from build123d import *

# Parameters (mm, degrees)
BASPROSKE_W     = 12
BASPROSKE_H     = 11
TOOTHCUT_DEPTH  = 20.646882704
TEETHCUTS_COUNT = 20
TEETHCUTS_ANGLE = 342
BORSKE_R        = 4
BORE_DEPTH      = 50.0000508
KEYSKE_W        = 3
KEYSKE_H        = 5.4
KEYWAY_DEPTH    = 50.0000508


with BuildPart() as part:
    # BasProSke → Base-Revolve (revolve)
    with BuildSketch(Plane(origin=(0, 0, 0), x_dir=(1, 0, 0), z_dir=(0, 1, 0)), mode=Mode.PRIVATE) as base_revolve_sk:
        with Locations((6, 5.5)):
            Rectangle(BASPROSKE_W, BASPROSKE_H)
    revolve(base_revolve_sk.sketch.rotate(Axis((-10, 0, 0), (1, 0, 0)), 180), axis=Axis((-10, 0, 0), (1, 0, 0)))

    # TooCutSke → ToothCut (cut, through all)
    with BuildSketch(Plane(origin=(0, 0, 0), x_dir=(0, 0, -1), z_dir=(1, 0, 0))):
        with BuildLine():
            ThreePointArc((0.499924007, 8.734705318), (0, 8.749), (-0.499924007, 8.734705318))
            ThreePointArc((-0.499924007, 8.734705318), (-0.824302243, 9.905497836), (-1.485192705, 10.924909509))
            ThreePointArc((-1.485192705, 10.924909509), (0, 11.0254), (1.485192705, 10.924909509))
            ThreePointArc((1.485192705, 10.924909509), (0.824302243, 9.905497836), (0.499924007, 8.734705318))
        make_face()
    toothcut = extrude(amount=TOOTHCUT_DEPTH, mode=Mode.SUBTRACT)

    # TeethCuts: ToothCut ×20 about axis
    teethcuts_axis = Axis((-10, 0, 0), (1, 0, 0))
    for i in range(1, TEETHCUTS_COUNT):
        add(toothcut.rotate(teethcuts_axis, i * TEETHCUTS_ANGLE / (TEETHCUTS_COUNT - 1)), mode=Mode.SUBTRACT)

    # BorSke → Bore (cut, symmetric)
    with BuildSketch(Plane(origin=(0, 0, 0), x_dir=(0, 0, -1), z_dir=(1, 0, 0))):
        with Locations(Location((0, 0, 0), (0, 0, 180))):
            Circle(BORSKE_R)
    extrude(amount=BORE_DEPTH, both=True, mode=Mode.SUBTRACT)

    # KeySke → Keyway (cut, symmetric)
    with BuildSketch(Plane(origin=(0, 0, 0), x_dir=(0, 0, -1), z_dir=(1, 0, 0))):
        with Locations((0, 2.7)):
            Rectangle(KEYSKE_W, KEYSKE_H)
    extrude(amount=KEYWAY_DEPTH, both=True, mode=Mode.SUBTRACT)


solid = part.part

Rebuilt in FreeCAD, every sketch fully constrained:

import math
import FreeCAD as App
import Part
import Sketcher

V = App.Vector


def add_polygon(sketch, points):
    """Adds a closed chain of lines whose ends are joined by coincident constraints."""
    first, n = sketch.GeometryCount, len(points)
    for a, b in zip(points, points[1:] + points[:1]):
        sketch.addGeometry(Part.LineSegment(App.Vector(*a, 0), App.Vector(*b, 0)), False)
    for i in range(n):
        sketch.addConstraint(Sketcher.Constraint("Coincident", first + i, 2, first + (i + 1) % n, 1))

doc = App.newDocument("Part")
body = doc.addObject("PartDesign::Body", "Body")

sketch1 = body.newObject("Sketcher::SketchObject", "Sketch")
sketch1.AttachmentSupport = (doc.getObject("XZ_Plane"), [""])
sketch1.MapMode = "FlatFace"
add_polygon(sketch1, [(0, -11), (0, 0), (12, 0), (12, -11)])
sketch1.addConstraint(Sketcher.Constraint("Vertical", 0))
sketch1.addConstraint(Sketcher.Constraint("Horizontal", 1))
sketch1.addConstraint(Sketcher.Constraint("Vertical", 2))
sketch1.addConstraint(Sketcher.Constraint("Horizontal", 3))
sketch1.addConstraint(Sketcher.Constraint("Coincident", 0, 2, -1, 1))
sketch1.addConstraint(Sketcher.Constraint("DistanceX", 1, 1, 1, 2, 12.0))
sketch1.addConstraint(Sketcher.Constraint("DistanceY", 0, 1, 0, 2, 11.0))
revolution = body.newObject("PartDesign::Revolution", "Revolution")
revolution.Profile = sketch1
revolution.ReferenceAxis = (sketch1, ["H_Axis"])
revolution.Angle = 360

sketch2 = body.newObject("Sketcher::SketchObject", "Sketch001")
sketch2.AttachmentSupport = (doc.getObject("YZ_Plane"), [""])
sketch2.MapMode = "FlatFace"
sketch2.addGeometry(Part.ArcOfCircle(Part.Circle(V(0, 0, 0), V(0, 0, 1), 8.7), math.radians(-3.28), math.radians(3.28)), False)
sketch2.addGeometry(Part.ArcOfCircle(Part.Circle(V(8.3, -4.5, 0), V(0, 0, 1), 4), math.radians(48), math.radians(83)), False)
sketch2.addGeometry(Part.ArcOfCircle(Part.Circle(V(0, 0, 0), V(0, 0, 1), 11), math.radians(-7.74), math.radians(7.74)), False)
sketch2.addGeometry(Part.ArcOfCircle(Part.Circle(V(8.3, 4.5, 0), V(0, 0, 1), 4), math.radians(-83), math.radians(-48)), False)
sketch2.addConstraint(Sketcher.Constraint("Coincident", 0, 1, 1, 2))
sketch2.addConstraint(Sketcher.Constraint("Coincident", 1, 1, 2, 1))
sketch2.addConstraint(Sketcher.Constraint("Coincident", 2, 2, 3, 2))
sketch2.addConstraint(Sketcher.Constraint("Coincident", 3, 1, 0, 2))
sketch2.addConstraint(Sketcher.Constraint("Coincident", 0, 3, -1, 1))
sketch2.addConstraint(Sketcher.Constraint("Coincident", 2, 3, -1, 1))
sketch2.addConstraint(Sketcher.Constraint("Equal", 1, 3))
sketch2.addConstraint(Sketcher.Constraint("Symmetric", 1, 3, 3, 3, -1))
sketch2.addConstraint(Sketcher.Constraint("Radius", 1, 4.0))
sketch2.addConstraint(Sketcher.Constraint("Radius", 0, 8.749))
sketch2.addConstraint(Sketcher.Constraint("Radius", 2, 11.0254))
sketch2.addConstraint(Sketcher.Constraint("DistanceY", 1, 3, -1, 1, 4.47219))
sketch2.addConstraint(Sketcher.Constraint("DistanceX", -1, 1, 1, 1, 10.92491))
pocket1 = body.newObject("PartDesign::Pocket", "Pocket")
pocket1.Profile = sketch2
pocket1.Type = "ThroughAll"
pocket1.Reversed = True
doc.recompute()

polarpattern = body.newObject("PartDesign::PolarPattern", "PolarPattern")
polarpattern.Originals = [pocket1]
polarpattern.Axis = (doc.getObject("X_Axis"), [""])
polarpattern.Angle = 360
polarpattern.Occurrences = 20
body.Tip = polarpattern

sketch3 = body.newObject("Sketcher::SketchObject", "Sketch002")
sketch3.AttachmentSupport = (doc.getObject("YZ_Plane"), [""])
sketch3.MapMode = "FlatFace"
sketch3.addGeometry(Part.Circle(V(0, 0, 0), V(0, 0, 1), 4), False)
sketch3.addConstraint(Sketcher.Constraint("Coincident", 0, 3, -1, 1))
sketch3.addConstraint(Sketcher.Constraint("Diameter", 0, 8.0))
pocket2 = body.newObject("PartDesign::Pocket", "Pocket001")
pocket2.Profile = sketch3
pocket2.Length = 100.000102
pocket2.Midplane = True

sketch4 = body.newObject("Sketcher::SketchObject", "Sketch003")
sketch4.AttachmentSupport = (doc.getObject("YZ_Plane"), [""])
sketch4.MapMode = "FlatFace"
add_polygon(sketch4, [(5.4, 1.5), (0, 1.5), (0, -1.5), (5.4, -1.5)])
sketch4.addConstraint(Sketcher.Constraint("Horizontal", 0))
sketch4.addConstraint(Sketcher.Constraint("Vertical", 1))
sketch4.addConstraint(Sketcher.Constraint("Horizontal", 2))
sketch4.addConstraint(Sketcher.Constraint("Vertical", 3))
sketch4.addConstraint(Sketcher.Constraint("Symmetric", 0, 2, 1, 2, -1, 1))
sketch4.addConstraint(Sketcher.Constraint("DistanceY", 1, 2, 1, 1, 3.0))
sketch4.addConstraint(Sketcher.Constraint("DistanceX", 0, 2, 0, 1, 5.4))
pocket3 = body.newObject("PartDesign::Pocket", "Pocket002")
pocket3.Profile = sketch4
pocket3.Length = 100.000102
pocket3.Midplane = True

doc.recompute()
